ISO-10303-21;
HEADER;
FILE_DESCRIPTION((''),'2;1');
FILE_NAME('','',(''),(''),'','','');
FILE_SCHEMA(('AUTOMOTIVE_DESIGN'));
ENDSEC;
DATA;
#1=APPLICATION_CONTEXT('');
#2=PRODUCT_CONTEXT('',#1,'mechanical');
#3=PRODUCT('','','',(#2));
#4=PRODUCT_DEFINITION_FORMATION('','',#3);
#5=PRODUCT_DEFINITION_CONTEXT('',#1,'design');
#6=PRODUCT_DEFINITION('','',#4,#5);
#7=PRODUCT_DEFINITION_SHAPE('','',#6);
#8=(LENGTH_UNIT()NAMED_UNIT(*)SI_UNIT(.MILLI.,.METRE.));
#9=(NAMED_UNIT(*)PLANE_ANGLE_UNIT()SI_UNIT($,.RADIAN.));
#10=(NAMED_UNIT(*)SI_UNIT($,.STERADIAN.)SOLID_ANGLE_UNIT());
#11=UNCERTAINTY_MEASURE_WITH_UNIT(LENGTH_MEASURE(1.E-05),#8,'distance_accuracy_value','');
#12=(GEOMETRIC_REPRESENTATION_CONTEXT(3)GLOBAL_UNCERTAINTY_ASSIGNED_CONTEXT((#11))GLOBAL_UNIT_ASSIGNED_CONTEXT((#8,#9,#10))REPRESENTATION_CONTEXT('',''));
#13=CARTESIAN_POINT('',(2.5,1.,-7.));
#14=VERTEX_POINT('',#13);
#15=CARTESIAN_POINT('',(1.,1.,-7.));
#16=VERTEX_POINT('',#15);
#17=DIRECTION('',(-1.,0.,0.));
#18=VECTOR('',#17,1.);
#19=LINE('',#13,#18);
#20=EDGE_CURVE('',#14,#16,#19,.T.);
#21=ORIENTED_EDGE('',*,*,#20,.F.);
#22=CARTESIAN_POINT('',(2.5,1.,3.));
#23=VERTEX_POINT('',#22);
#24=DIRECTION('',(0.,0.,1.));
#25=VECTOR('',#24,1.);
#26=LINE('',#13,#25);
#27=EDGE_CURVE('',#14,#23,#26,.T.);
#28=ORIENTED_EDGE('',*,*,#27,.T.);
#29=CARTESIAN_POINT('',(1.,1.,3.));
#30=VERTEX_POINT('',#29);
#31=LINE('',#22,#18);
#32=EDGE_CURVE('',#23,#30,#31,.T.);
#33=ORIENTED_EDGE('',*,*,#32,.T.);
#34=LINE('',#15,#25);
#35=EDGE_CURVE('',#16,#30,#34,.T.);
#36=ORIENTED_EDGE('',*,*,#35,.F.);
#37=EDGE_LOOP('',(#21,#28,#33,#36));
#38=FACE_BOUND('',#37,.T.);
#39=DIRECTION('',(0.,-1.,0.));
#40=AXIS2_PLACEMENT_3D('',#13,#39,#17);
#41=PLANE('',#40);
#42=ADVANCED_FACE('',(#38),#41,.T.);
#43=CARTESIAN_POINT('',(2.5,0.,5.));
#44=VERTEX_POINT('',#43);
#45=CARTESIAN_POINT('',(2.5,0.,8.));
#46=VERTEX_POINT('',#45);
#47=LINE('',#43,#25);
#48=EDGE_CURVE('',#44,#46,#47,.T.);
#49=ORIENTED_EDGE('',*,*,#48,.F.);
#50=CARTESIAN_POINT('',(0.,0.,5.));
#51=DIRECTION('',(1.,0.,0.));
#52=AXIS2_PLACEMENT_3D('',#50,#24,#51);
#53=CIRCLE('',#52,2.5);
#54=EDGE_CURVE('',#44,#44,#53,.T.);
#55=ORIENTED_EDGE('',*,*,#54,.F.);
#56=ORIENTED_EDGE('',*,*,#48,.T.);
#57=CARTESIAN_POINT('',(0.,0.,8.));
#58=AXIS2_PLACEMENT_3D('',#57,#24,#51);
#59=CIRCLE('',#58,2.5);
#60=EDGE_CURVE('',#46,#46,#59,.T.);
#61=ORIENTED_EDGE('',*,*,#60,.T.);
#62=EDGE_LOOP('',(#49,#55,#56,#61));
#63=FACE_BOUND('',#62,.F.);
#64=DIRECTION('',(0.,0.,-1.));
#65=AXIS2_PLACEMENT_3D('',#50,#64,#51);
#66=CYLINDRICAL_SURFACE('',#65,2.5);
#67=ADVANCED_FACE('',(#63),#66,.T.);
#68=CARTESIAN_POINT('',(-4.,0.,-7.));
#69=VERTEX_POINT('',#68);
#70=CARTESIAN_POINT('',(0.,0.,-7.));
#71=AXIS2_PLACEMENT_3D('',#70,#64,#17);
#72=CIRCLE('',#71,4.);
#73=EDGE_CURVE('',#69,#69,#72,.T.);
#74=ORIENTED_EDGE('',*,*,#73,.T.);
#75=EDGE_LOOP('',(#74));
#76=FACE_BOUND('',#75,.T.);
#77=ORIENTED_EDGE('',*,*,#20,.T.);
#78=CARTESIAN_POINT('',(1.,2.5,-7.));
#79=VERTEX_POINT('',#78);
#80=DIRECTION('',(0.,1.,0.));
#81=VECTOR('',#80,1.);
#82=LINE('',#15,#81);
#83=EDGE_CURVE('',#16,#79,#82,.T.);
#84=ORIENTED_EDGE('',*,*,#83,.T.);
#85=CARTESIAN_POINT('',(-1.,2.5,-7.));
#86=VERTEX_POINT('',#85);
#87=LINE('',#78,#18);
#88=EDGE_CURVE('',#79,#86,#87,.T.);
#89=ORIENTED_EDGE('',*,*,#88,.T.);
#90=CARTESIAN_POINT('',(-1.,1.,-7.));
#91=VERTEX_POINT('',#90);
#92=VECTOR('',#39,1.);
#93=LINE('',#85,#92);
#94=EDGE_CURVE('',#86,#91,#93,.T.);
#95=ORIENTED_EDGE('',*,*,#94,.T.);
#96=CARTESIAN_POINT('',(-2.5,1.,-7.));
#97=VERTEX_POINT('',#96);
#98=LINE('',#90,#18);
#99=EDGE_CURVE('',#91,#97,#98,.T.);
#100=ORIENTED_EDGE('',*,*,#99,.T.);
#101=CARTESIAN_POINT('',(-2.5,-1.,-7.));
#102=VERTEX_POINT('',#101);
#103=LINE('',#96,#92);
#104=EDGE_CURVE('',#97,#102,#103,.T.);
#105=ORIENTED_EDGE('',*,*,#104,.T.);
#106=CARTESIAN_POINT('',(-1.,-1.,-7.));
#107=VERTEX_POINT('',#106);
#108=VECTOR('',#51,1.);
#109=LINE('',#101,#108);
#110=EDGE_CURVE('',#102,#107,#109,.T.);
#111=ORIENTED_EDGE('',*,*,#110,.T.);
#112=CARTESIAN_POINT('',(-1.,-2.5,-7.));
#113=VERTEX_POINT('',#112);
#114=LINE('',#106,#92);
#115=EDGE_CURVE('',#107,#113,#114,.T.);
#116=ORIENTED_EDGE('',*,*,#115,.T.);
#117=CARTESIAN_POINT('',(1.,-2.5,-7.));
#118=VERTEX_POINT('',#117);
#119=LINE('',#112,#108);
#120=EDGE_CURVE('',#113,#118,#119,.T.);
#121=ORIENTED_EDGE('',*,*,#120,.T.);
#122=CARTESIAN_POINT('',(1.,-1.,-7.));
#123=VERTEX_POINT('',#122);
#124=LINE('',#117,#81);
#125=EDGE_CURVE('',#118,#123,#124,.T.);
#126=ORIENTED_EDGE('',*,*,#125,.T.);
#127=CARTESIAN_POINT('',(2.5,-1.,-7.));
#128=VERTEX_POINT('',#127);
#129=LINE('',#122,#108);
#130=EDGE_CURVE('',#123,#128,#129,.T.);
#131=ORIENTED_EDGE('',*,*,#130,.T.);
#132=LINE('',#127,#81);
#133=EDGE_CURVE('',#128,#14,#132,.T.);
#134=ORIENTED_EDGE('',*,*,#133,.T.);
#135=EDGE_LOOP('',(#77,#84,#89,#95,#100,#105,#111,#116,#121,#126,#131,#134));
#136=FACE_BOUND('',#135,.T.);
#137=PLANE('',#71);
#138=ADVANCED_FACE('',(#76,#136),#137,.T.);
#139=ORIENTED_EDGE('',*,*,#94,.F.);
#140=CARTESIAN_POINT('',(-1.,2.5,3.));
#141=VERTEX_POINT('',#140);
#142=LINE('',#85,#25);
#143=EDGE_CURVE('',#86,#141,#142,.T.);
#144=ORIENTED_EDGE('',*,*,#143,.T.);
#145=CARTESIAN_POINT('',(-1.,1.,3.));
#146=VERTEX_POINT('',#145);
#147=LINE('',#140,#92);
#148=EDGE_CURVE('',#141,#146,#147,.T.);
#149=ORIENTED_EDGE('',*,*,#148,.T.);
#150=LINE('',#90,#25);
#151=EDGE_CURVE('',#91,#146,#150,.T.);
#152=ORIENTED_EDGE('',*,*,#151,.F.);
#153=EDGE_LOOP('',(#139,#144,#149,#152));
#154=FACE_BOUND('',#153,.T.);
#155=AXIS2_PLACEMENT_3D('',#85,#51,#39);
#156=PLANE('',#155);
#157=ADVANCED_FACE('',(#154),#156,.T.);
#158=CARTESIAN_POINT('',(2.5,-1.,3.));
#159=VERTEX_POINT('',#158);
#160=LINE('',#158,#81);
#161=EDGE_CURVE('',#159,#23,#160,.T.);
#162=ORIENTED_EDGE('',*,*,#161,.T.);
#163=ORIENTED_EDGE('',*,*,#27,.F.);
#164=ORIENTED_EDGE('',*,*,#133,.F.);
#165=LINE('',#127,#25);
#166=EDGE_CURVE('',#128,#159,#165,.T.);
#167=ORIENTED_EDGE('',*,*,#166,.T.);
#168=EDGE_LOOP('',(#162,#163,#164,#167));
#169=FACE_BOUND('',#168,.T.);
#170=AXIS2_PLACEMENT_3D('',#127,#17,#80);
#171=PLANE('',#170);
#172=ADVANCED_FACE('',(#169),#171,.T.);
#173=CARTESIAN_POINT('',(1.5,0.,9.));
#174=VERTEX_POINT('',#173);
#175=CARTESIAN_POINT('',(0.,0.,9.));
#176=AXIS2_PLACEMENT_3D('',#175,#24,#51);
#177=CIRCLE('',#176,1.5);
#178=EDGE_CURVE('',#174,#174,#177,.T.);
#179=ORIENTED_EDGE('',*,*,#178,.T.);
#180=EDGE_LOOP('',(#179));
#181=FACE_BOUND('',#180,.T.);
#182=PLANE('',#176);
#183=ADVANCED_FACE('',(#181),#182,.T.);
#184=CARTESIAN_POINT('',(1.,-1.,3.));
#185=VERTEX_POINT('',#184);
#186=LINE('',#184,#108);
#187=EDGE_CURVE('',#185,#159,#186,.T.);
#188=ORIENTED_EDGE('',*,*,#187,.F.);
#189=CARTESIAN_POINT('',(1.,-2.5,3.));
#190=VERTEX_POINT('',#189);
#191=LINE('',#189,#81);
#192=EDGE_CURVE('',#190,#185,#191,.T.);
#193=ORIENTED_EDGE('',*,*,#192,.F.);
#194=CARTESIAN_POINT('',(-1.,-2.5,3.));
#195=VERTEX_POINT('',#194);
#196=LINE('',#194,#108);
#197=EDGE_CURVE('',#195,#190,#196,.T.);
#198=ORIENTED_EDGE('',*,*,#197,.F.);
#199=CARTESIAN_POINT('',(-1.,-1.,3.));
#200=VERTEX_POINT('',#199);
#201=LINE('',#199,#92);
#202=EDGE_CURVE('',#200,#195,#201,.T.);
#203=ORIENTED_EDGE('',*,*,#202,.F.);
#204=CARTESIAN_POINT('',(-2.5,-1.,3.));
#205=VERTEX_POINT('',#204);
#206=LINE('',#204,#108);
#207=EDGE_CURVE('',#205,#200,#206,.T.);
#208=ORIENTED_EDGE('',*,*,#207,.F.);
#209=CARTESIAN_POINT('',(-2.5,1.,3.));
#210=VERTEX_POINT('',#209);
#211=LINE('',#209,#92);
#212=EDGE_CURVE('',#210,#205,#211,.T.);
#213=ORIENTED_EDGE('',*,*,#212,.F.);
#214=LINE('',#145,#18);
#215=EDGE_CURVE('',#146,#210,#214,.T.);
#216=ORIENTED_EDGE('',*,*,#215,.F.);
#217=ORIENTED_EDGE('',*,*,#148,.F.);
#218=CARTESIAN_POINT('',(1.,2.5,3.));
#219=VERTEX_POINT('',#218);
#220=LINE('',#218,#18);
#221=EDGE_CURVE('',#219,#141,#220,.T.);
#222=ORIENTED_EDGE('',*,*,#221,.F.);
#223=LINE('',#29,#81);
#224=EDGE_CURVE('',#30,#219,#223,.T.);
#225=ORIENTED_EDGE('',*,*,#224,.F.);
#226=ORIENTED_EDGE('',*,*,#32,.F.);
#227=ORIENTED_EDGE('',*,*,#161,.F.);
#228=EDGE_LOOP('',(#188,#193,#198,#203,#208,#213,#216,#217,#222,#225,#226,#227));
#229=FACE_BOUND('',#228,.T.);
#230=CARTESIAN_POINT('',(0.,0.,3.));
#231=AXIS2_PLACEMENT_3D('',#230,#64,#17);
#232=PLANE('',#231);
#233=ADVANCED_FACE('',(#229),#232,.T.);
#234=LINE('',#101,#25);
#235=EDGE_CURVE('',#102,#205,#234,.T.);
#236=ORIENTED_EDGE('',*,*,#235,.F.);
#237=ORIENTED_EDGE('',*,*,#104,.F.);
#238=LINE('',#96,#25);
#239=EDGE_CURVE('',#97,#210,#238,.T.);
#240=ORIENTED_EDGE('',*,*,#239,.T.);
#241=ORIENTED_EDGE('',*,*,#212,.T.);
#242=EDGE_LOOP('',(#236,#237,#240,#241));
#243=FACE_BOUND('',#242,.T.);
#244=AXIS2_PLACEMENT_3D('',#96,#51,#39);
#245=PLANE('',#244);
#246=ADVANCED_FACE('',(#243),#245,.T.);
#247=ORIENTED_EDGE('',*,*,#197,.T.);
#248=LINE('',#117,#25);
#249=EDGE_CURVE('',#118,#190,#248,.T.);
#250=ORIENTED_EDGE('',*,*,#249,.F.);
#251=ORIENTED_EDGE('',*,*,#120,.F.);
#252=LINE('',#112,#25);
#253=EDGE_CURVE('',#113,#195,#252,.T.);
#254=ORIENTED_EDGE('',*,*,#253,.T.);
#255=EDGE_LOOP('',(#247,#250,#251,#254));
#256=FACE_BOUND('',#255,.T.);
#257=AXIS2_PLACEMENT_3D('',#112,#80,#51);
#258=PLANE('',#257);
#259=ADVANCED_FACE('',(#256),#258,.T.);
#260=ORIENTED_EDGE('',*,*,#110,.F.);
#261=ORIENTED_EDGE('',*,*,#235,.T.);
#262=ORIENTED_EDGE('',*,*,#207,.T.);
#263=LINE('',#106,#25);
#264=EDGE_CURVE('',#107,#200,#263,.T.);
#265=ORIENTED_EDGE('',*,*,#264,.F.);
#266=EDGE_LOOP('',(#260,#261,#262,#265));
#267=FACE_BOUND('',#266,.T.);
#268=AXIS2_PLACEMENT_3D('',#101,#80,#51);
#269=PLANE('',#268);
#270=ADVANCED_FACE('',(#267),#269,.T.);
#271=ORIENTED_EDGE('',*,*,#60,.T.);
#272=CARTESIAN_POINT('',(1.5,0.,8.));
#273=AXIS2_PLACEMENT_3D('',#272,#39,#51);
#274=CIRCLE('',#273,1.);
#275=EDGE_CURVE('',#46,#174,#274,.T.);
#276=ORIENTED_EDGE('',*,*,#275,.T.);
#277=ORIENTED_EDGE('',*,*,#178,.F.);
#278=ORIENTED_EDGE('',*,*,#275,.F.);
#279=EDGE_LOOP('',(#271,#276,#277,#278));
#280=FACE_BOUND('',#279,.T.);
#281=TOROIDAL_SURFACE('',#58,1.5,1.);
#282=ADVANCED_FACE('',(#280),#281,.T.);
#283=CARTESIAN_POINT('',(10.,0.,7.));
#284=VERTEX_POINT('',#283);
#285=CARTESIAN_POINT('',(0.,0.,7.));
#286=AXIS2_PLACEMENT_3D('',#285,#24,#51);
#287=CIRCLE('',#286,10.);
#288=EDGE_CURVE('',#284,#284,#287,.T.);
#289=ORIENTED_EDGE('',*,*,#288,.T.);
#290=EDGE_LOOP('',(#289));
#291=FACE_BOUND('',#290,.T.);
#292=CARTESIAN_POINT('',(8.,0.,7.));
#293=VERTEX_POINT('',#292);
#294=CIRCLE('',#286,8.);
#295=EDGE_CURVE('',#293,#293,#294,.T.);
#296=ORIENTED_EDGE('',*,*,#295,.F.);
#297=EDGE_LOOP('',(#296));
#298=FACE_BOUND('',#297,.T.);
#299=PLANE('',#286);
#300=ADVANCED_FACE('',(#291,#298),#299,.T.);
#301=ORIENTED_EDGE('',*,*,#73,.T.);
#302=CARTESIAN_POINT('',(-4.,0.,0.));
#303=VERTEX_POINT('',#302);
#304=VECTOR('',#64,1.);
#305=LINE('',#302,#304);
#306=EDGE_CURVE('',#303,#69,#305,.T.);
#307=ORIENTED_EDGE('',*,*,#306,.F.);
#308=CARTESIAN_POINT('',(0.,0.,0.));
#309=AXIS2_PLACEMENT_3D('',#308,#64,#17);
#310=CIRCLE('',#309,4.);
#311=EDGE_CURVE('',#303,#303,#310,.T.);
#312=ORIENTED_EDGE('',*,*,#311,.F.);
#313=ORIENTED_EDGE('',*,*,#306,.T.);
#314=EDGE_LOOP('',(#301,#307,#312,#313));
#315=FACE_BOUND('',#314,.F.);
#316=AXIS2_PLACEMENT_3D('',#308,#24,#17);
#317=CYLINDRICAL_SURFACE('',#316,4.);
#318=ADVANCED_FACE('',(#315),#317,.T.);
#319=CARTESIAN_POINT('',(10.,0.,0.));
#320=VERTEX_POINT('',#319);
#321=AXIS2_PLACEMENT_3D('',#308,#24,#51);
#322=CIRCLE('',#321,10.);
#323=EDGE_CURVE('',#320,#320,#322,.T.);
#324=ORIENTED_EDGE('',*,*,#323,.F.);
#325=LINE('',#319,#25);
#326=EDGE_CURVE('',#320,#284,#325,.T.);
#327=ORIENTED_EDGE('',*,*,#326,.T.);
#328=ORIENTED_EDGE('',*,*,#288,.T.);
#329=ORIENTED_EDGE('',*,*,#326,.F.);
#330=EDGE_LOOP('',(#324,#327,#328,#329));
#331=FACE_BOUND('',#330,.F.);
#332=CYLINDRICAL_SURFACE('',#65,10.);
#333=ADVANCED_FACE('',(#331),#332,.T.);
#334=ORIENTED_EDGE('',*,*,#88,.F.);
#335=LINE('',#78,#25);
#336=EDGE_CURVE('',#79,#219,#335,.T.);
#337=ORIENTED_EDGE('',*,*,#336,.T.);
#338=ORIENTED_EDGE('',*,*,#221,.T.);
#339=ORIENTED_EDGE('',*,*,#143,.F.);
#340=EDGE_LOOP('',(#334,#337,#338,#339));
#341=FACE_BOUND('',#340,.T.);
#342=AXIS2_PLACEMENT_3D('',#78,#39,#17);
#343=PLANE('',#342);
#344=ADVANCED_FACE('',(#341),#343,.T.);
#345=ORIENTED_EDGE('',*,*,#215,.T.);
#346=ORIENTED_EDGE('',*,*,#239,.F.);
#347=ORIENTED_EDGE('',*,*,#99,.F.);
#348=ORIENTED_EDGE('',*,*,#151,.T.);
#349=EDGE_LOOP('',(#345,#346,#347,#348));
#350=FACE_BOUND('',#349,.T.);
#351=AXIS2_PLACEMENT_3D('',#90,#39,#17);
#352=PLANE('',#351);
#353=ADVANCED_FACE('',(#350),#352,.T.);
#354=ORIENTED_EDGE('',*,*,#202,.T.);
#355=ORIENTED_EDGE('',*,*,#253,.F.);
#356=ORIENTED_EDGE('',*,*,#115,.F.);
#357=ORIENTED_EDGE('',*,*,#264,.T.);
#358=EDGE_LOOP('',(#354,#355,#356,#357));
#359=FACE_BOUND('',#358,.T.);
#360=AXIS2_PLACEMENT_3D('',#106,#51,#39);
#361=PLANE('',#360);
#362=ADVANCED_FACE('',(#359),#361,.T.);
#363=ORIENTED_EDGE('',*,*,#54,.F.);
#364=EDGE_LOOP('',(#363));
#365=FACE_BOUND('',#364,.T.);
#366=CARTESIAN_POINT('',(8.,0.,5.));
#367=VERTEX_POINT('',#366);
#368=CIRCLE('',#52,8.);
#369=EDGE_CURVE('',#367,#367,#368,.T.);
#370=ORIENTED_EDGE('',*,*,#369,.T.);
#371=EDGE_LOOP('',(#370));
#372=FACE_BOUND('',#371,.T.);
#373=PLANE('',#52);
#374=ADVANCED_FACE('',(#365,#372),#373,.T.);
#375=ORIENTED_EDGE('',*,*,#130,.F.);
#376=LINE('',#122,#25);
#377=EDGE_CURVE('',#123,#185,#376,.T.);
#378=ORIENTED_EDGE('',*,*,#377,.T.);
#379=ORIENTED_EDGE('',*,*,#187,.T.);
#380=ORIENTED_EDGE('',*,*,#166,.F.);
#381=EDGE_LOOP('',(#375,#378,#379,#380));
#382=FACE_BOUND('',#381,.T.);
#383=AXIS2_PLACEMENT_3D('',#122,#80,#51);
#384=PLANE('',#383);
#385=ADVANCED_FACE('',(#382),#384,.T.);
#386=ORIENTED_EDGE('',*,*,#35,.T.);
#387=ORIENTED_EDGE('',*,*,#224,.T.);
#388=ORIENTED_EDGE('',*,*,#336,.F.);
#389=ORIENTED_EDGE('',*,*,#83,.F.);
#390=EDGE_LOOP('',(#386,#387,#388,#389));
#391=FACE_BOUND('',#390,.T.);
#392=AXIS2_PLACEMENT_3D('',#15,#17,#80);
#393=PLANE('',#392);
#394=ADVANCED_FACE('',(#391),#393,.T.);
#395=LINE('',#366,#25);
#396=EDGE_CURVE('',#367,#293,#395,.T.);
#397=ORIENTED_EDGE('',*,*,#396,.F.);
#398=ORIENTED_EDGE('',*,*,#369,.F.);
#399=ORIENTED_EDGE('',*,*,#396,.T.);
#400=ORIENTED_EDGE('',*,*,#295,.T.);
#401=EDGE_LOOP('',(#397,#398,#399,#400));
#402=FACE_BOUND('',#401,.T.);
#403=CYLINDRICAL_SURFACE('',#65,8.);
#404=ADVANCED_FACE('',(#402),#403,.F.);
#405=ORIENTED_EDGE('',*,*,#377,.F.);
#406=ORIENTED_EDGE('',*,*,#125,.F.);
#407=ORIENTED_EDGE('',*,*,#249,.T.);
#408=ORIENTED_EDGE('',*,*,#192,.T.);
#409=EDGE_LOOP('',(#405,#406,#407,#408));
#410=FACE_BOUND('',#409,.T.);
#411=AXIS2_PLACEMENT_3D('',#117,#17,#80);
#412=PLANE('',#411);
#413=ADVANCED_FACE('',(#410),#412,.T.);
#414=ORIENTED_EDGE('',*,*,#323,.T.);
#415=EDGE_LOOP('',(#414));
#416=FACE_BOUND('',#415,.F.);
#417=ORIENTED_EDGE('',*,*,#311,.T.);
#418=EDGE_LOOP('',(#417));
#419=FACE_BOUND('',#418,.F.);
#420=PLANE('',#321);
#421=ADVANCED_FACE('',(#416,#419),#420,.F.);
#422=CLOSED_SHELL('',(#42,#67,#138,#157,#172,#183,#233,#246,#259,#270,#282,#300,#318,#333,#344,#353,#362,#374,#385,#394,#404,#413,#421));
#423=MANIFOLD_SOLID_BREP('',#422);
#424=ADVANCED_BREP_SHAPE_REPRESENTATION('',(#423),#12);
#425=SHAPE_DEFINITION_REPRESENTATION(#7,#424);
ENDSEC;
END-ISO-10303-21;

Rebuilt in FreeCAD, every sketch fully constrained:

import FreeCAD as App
import Part
import Sketcher
from FreeCAD import Vector
Q = App.Units.Quantity


def edges_at(feature, points):
    """Names of the edges that pass closest to the given points."""
    edges = feature.Shape.Edges
    near = lambda p: min(range(len(edges)), key=lambda i: edges[i].distToShape(Part.Vertex(*p))[0])
    return sorted({f"Edge{near(p) + 1}" for p in points})

doc = App.newDocument("Part")
body = doc.addObject("PartDesign::Body", "Body")

sketch1 = doc.addObject("Sketcher::SketchObject", "Sketch")
body.addObject(sketch1)
sketch1.AttachmentSupport = (doc.XY_Plane, [""])
sketch1.MapMode = "FlatFace"
sketch1.addGeometry(Part.Circle(Vector(0, 0, 0), Vector(0, 0, 1), 10), False)
sketch1.addConstraint([
    Sketcher.Constraint("Coincident", 0, 3, -1, 1),
    Sketcher.Constraint("Diameter", 0, Q("20 mm")),
])
pad1 = doc.addObject("PartDesign::Pad", "Pad")
body.addObject(pad1)
pad1.Profile = sketch1
pad1.Length = 5

sketch2 = doc.addObject("Sketcher::SketchObject", "Sketch001")
body.addObject(sketch2)
sketch2.AttachmentSupport = (doc.XY_Plane, [""])
sketch2.MapMode = "FlatFace"
sketch2.addGeometry(Part.Circle(Vector(0, 0, 0), Vector(0, 0, 1), 4), False)
sketch2.addConstraint([
    Sketcher.Constraint("Coincident", 0, 3, -1, 1),
    Sketcher.Constraint("Diameter", 0, Q("8 mm")),
])
pad2 = doc.addObject("PartDesign::Pad", "Pad001")
body.addObject(pad2)
pad2.Profile = sketch2
pad2.Length = 7
pad2.Reversed = True

sketch3 = doc.addObject("Sketcher::SketchObject", "Sketch002")
body.addObject(sketch3)
sketch3.AttachmentSupport = (doc.XY_Plane, [""])
sketch3.MapMode = "FlatFace"
sketch3.AttachmentOffset = App.Placement(Vector(0, 0, 5), App.Rotation())
sketch3.addGeometry(Part.Circle(Vector(0, 0, 0), Vector(0, 0, 1), 2.5), False)
sketch3.addConstraint([
    Sketcher.Constraint("Coincident", 0, 3, -1, 1),
    Sketcher.Constraint("Diameter", 0, Q("5 mm")),
])
pad3 = doc.addObject("PartDesign::Pad", "Pad002")
body.addObject(pad3)
pad3.Profile = sketch3
pad3.Length = 4
doc.recompute()

fillet = doc.addObject("PartDesign::Fillet", "Fillet")
body.addObject(fillet)
fillet.Base = (pad3, edges_at(pad3, [(-2.5, 0, 9)]))
fillet.Radius = 1

sketch4 = doc.addObject("Sketcher::SketchObject", "Sketch003")
body.addObject(sketch4)
sketch4.AttachmentSupport = (doc.XY_Plane, [""])
sketch4.MapMode = "FlatFace"
sketch4.AttachmentOffset = App.Placement(Vector(0, 0, 5), App.Rotation())
sketch4.addGeometry([
    Part.Circle(Vector(0, 0, 0), Vector(0, 0, 1), 10),
    Part.Circle(Vector(0, 0, 0), Vector(0, 0, 1), 8),
], False)
sketch4.addConstraint([
    Sketcher.Constraint("Coincident", 0, 3, -1, 1),
    Sketcher.Constraint("Coincident", 1, 3, -1, 1),
    Sketcher.Constraint("Diameter", 0, Q("20 mm")),
    Sketcher.Constraint("Diameter", 1, Q("16 mm")),
])
pad4 = doc.addObject("PartDesign::Pad", "Pad003")
body.addObject(pad4)
pad4.Profile = sketch4
pad4.Length = 2

sketch5 = doc.addObject("Sketcher::SketchObject", "Sketch004")
body.addObject(sketch5)
sketch5.AttachmentSupport = (doc.XY_Plane, [""])
sketch5.MapMode = "FlatFace"
sketch5.AttachmentOffset = App.Placement(Vector(0, 0, -7), App.Rotation())
sketch5.addGeometry([
    Part.LineSegment(Vector(-2.5, -1, 0), Vector(-2.5, 1, 0)),
    Part.LineSegment(Vector(-2.5, 1, 0), Vector(-1, 1, 0)),
    Part.LineSegment(Vector(-1, 1, 0), Vector(-1, 2.5, 0)),
    Part.LineSegment(Vector(-1, 2.5, 0), Vector(1, 2.5, 0)),
    Part.LineSegment(Vector(1, 2.5, 0), Vector(1, 1, 0)),
    Part.LineSegment(Vector(1, 1, 0), Vector(2.5, 1, 0)),
    Part.LineSegment(Vector(2.5, 1, 0), Vector(2.5, -1, 0)),
    Part.LineSegment(Vector(2.5, -1, 0), Vector(1, -1, 0)),
    Part.LineSegment(Vector(1, -1, 0), Vector(1, -2.5, 0)),
    Part.LineSegment(Vector(1, -2.5, 0), Vector(-1, -2.5, 0)),
    Part.LineSegment(Vector(-1, -2.5, 0), Vector(-1, -1, 0)),
    Part.LineSegment(Vector(-1, -1, 0), Vector(-2.5, -1, 0)),
], False)
sketch5.addConstraint([
    Sketcher.Constraint("Coincident", 0, 2, 1, 1),
    Sketcher.Constraint("Coincident", 1, 2, 2, 1),
    Sketcher.Constraint("Coincident", 2, 2, 3, 1),
    Sketcher.Constraint("Coincident", 3, 2, 4, 1),
    Sketcher.Constraint("Coincident", 4, 2, 5, 1),
    Sketcher.Constraint("Coincident", 5, 2, 6, 1),
    Sketcher.Constraint("Coincident", 6, 2, 7, 1),
    Sketcher.Constraint("Coincident", 7, 2, 8, 1),
    Sketcher.Constraint("Coincident", 8, 2, 9, 1),
    Sketcher.Constraint("Coincident", 9, 2, 10, 1),
    Sketcher.Constraint("Coincident", 10, 2, 11, 1),
    Sketcher.Constraint("Coincident", 11, 2, 0, 1),
    Sketcher.Constraint("Vertical", 0),
    Sketcher.Constraint("Horizontal", 1),
    Sketcher.Constraint("Vertical", 2),
    Sketcher.Constraint("Horizontal", 3),
    Sketcher.Constraint("Vertical", 4),
    Sketcher.Constraint("Horizontal", 5),
    Sketcher.Constraint("Vertical", 6),
    Sketcher.Constraint("Horizontal", 7),
    Sketcher.Constraint("Vertical", 8),
    Sketcher.Constraint("Horizontal", 9),
    Sketcher.Constraint("Vertical", 10),
    Sketcher.Constraint("Horizontal", 11),
    Sketcher.Constraint("Symmetric", 0, 2, 6, 2, -1, 1),
    Sketcher.Constraint("Symmetric", 2, 2, 8, 2, -1, 1),
    Sketcher.Constraint("Symmetric", 4, 2, 10, 2, -1, 1),
    Sketcher.Constraint("Symmetric", 1, 2, 4, 2, -2),
    Sketcher.Constraint("Equal", 9, 0),
    Sketcher.Constraint("Equal", 11, 2),
    Sketcher.Constraint("DistanceX", 3, 1, 3, 2, Q("2 mm")),
    Sketcher.Constraint("DistanceX", 0, 2, 5, 2, Q("5 mm")),
])
pocket1 = doc.addObject("PartDesign::Pocket", "Pocket")
body.addObject(pocket1)
pocket1.Profile = sketch5
pocket1.Length = 10
pocket1.Reversed = True

doc.recompute()
